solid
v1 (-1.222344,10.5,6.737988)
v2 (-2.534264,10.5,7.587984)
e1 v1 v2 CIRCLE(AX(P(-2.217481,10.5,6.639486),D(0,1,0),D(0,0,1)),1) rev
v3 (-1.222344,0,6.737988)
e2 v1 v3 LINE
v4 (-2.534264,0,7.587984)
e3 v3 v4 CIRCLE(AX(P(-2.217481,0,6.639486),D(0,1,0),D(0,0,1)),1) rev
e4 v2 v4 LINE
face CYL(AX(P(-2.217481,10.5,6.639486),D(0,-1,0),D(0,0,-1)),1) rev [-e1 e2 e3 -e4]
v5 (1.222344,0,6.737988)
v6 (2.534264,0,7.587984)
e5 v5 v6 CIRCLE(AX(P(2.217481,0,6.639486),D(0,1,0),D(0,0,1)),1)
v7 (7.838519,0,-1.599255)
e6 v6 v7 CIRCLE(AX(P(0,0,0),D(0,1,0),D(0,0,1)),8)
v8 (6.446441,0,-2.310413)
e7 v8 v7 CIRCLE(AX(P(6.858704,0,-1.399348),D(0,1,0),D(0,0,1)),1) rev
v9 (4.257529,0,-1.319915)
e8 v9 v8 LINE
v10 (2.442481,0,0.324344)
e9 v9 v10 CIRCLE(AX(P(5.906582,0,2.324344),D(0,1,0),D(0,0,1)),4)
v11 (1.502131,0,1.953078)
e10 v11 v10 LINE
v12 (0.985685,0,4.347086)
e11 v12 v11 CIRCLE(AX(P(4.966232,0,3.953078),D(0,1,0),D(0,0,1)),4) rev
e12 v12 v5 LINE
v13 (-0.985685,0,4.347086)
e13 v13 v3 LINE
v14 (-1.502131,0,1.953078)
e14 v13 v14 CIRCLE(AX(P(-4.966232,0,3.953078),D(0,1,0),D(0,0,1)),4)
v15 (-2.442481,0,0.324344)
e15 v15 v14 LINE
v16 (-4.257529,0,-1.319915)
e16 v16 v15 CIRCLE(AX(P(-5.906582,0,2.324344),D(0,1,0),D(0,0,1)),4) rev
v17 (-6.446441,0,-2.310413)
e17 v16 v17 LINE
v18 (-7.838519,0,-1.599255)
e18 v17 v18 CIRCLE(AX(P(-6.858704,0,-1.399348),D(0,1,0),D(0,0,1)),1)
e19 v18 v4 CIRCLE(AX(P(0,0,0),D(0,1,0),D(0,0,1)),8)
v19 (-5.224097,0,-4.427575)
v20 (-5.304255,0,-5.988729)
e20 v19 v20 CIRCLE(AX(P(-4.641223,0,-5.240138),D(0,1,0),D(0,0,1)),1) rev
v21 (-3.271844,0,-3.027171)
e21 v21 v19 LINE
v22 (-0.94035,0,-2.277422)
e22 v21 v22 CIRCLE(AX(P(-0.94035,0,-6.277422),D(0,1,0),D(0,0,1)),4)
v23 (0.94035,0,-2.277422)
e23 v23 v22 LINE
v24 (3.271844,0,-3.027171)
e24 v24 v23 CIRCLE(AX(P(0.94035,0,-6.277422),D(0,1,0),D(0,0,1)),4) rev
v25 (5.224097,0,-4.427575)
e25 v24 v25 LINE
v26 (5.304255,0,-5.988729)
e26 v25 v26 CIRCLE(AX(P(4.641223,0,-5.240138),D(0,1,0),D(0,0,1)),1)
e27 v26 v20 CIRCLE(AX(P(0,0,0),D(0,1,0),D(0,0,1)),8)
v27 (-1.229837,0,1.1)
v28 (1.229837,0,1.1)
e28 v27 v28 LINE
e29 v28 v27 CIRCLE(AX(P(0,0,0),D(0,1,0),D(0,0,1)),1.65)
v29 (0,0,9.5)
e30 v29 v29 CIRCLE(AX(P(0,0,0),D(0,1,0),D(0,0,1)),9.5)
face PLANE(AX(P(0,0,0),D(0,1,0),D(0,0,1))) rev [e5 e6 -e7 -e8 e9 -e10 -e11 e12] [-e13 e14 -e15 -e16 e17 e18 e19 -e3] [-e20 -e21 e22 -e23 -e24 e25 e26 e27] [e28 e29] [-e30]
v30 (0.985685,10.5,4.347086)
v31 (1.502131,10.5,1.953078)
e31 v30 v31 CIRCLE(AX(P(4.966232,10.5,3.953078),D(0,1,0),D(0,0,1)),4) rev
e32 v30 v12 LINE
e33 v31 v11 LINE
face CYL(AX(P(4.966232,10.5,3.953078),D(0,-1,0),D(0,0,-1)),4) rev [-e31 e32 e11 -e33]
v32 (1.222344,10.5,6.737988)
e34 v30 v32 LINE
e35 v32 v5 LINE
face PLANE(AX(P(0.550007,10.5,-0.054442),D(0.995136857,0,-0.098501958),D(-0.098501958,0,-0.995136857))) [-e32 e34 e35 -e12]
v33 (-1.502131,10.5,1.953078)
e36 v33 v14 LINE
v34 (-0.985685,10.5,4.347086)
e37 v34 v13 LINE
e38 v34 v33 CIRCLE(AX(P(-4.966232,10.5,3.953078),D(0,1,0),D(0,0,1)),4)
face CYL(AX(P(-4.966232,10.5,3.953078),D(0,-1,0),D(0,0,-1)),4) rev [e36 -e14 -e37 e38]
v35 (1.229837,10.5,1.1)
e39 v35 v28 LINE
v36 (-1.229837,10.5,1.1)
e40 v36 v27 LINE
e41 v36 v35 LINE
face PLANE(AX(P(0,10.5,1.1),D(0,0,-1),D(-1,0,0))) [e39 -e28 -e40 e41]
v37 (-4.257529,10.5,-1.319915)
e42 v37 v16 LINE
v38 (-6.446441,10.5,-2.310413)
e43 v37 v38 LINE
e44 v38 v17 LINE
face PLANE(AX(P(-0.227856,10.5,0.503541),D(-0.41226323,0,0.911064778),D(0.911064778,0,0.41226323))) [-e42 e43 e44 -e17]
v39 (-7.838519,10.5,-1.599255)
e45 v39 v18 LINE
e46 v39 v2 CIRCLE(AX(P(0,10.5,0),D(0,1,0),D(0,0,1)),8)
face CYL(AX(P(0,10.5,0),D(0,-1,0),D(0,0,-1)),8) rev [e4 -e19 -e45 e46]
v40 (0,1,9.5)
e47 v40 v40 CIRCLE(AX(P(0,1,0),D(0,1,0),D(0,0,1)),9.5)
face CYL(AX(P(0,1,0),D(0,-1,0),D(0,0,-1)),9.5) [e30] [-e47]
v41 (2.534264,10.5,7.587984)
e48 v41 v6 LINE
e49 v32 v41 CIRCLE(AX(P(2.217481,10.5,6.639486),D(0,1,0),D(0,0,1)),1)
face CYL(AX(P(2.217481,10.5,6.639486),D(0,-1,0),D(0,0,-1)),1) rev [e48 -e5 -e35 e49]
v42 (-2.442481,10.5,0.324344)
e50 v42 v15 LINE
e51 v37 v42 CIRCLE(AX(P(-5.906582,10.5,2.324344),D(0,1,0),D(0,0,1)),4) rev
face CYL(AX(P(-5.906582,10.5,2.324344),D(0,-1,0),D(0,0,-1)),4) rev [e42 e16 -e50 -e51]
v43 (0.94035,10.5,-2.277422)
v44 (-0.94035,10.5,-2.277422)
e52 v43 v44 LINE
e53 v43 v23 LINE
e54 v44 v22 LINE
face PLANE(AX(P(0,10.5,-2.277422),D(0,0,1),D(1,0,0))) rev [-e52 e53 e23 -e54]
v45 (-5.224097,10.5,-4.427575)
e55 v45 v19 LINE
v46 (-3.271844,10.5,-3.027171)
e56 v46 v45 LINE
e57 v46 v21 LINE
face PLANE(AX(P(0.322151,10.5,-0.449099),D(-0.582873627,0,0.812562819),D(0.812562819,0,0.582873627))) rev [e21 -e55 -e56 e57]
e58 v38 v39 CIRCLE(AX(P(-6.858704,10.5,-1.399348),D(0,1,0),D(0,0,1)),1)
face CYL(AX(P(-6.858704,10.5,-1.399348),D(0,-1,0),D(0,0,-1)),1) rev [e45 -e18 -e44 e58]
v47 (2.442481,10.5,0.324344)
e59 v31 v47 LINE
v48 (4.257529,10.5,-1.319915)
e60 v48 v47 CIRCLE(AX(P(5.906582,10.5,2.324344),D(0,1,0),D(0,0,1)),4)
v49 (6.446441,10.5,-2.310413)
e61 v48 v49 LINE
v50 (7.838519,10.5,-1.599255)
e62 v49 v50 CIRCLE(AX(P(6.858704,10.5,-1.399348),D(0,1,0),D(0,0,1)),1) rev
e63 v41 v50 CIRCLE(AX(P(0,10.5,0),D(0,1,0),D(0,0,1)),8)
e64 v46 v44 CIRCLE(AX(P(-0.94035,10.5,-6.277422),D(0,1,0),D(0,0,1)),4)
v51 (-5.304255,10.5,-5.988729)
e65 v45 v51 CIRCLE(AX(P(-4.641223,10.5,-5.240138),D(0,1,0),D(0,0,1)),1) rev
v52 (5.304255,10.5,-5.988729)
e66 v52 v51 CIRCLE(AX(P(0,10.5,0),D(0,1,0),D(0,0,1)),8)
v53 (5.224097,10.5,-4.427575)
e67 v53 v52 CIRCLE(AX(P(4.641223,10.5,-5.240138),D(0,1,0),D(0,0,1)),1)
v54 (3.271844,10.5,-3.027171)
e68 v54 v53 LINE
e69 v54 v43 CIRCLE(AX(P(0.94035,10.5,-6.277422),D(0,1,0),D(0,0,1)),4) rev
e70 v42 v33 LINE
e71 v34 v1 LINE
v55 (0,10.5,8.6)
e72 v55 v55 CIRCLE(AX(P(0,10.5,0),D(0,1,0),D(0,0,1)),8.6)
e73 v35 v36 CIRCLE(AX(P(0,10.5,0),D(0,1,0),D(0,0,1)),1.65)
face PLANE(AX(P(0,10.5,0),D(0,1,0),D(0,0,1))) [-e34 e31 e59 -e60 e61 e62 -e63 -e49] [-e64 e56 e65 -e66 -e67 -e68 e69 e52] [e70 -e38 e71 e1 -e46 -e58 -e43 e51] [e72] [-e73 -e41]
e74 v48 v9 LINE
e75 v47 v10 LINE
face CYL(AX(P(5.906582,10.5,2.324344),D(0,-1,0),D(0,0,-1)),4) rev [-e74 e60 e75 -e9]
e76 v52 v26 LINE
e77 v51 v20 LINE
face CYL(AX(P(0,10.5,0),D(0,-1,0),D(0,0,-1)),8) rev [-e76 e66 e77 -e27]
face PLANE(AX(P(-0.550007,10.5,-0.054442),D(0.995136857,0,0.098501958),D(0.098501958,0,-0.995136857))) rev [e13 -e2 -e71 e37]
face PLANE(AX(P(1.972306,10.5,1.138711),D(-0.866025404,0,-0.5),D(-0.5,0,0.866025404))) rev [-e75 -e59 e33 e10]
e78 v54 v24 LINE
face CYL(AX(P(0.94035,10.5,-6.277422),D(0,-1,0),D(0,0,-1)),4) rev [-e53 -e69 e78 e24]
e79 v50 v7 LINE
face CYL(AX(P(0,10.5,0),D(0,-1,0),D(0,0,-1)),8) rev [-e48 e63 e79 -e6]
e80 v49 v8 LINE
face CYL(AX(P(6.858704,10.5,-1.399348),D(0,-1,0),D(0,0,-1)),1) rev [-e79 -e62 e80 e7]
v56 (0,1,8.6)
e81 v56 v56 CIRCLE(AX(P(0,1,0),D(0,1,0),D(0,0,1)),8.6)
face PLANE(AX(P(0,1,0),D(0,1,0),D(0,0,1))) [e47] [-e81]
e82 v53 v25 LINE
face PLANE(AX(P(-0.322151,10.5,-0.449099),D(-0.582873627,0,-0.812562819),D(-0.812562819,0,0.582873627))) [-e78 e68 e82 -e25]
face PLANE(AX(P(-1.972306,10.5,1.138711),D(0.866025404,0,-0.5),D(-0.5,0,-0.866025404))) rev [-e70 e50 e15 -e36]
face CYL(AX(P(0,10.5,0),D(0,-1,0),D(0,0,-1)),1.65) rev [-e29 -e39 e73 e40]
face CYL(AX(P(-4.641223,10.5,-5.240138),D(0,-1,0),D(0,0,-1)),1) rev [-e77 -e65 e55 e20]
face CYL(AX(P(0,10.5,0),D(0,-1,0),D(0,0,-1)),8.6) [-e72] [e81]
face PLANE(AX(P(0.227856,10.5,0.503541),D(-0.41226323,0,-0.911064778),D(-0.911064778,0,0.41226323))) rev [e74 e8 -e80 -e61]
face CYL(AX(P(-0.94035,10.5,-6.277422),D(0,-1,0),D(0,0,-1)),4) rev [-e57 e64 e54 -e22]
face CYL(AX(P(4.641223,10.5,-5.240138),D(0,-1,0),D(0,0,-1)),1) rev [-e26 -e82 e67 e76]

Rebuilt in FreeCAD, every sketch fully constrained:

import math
import FreeCAD as App
import Part
import Sketcher
from FreeCAD import Vector
Q = App.Units.Quantity

doc = App.newDocument("Part")
body = doc.addObject("PartDesign::Body", "Body")

# Sketch on XZ plane
sketch1 = body.newObject("Sketcher::SketchObject", "Sketch")
sketch1.AttachmentSupport = (doc.getObject("XZ_Plane"), [""])
sketch1.MapMode = "FlatFace"
sketch1.addGeometry([
    Part.Circle(Vector(0, 0, 0), Vector(0, 0, 1), 9.5),
    Part.Circle(Vector(0, 0, 0), Vector(0, 0, 1), 8.6),
], False)
sketch1.addConstraint([
    Sketcher.Constraint("Coincident", 0, 3, -1, 1),
    Sketcher.Constraint("Coincident", 1, 3, -1, 1),
    Sketcher.Constraint("Diameter", 0, Q("19 mm")),
    Sketcher.Constraint("Diameter", 1, Q("17.2 mm")),
])
pad1 = body.newObject("PartDesign::Pad", "Pad")
pad1.Profile = sketch1
pad1.Length = 1
pad1.Reversed = True

# Sketch on XZ plane
sketch2 = body.newObject("Sketcher::SketchObject", "Sketch001")
sketch2.AttachmentSupport = (doc.getObject("XZ_Plane"), [""])
sketch2.MapMode = "FlatFace"
sketch2.addGeometry([
    Part.Circle(Vector(0, 0, 0), Vector(0, 0, 1), 8.6),  # 0
    Part.LineSegment(Vector(-6.446441, -2.310413, 0), Vector(-4.257529, -1.319915, 0)),  # 1
    Part.ArcOfCircle(Part.Circle(Vector(-5.906582, 2.324344, 0), Vector(0, 0, 1), 4), math.radians(-65.652913), math.radians(-30)),  # 2
    Part.LineSegment(Vector(-2.442481, 0.324344, 0), Vector(-1.502131, 1.953078, 0)),  # 3
    Part.ArcOfCircle(Part.Circle(Vector(-4.966232, 3.953078, 0), Vector(0, 0, 1), 4), math.radians(-30), math.radians(5.652913)),  # 4
    Part.LineSegment(Vector(-0.985685, 4.347086, 0), Vector(-1.222344, 6.737988, 0)),  # 5
    Part.ArcOfCircle(Part.Circle(Vector(-2.217481, 6.639486, 0), Vector(0, 0, 1), 1), math.radians(5.652913), math.radians(108.468488)),  # 6
    Part.ArcOfCircle(Part.Circle(Vector(0, 0, 0), Vector(0, 0, 1), 8), math.radians(108.468488), math.radians(131.531512)),  # 7
    Part.ArcOfCircle(Part.Circle(Vector(0, 0, 0), Vector(0, 0, 1), 8), math.radians(131.531512), math.radians(168.468488)),  # 8
    Part.ArcOfCircle(Part.Circle(Vector(0, 0, 0), Vector(0, 0, 1), 8), math.radians(168.468488), math.radians(191.531512)),  # 9
    Part.ArcOfCircle(Part.Circle(Vector(-6.858704, -1.399348, 0), Vector(0, 0, 1), 1), math.radians(-168.468488), math.radians(-65.652913)),  # 10
    Part.LineSegment(Vector(1.502131, 1.953078, 0), Vector(2.442481, 0.324344, 0)),  # 11
    Part.ArcOfCircle(Part.Circle(Vector(5.906582, 2.324344, 0), Vector(0, 0, 1), 4), math.radians(-150), math.radians(-114.347087)),  # 12
    Part.LineSegment(Vector(4.257529, -1.319915, 0), Vector(6.446441, -2.310413, 0)),  # 13
    Part.ArcOfCircle(Part.Circle(Vector(6.858704, -1.399348, 0), Vector(0, 0, 1), 1), math.radians(-114.347087), math.radians(-11.531512)),  # 14
    Part.ArcOfCircle(Part.Circle(Vector(0, 0, 0), Vector(0, 0, 1), 8), math.radians(-11.531512), math.radians(11.531512)),  # 15
    Part.ArcOfCircle(Part.Circle(Vector(0, 0, 0), Vector(0, 0, 1), 8), math.radians(11.531512), math.radians(48.468488)),  # 16
    Part.ArcOfCircle(Part.Circle(Vector(0, 0, 0), Vector(0, 0, 1), 8), math.radians(48.468488), math.radians(71.531512)),  # 17
    Part.ArcOfCircle(Part.Circle(Vector(2.217481, 6.639486, 0), Vector(0, 0, 1), 1), math.radians(71.531512), math.radians(174.347087)),  # 18
    Part.LineSegment(Vector(1.222344, 6.737988, 0), Vector(0.985685, 4.347086, 0)),  # 19
    Part.ArcOfCircle(Part.Circle(Vector(4.966232, 3.953078, 0), Vector(0, 0, 1), 4), math.radians(174.347087), math.radians(210)),  # 20
    Part.ArcOfCircle(Part.Circle(Vector(0, 0, 0), Vector(0, 0, 1), 1.65), math.radians(138.189685), math.radians(401.810315)),  # 21
    Part.LineSegment(Vector(1.229837, 1.1, 0), Vector(-1.229837, 1.1, 0)),  # 22
    Part.ArcOfCircle(Part.Circle(Vector(4.641223, -5.240138, 0), Vector(0, 0, 1), 1), math.radians(-48.468488), math.radians(54.347087)),  # 23
    Part.LineSegment(Vector(5.224097, -4.427575, 0), Vector(3.271844, -3.027171, 0)),  # 24
    Part.ArcOfCircle(Part.Circle(Vector(0.94035, -6.277422, 0), Vector(0, 0, 1), 4), math.radians(54.347087), math.radians(90)),  # 25
    Part.LineSegment(Vector(0.94035, -2.277422, 0), Vector(-0.94035, -2.277422, 0)),  # 26
    Part.ArcOfCircle(Part.Circle(Vector(-0.94035, -6.277422, 0), Vector(0, 0, 1), 4), math.radians(90), math.radians(125.652913)),  # 27
    Part.LineSegment(Vector(-3.271844, -3.027171, 0), Vector(-5.224097, -4.427575, 0)),  # 28
    Part.ArcOfCircle(Part.Circle(Vector(-4.641223, -5.240138, 0), Vector(0, 0, 1), 1), math.radians(125.652913), math.radians(228.468488)),  # 29
    Part.ArcOfCircle(Part.Circle(Vector(0, 0, 0), Vector(0, 0, 1), 8), math.radians(-131.531512), math.radians(-108.468488)),  # 30
    Part.ArcOfCircle(Part.Circle(Vector(0, 0, 0), Vector(0, 0, 1), 8), math.radians(-108.468488), math.radians(-71.531512)),  # 31
    Part.ArcOfCircle(Part.Circle(Vector(0, 0, 0), Vector(0, 0, 1), 8), math.radians(-71.531512), math.radians(-48.468488)),  # 32
], False)
sketch2.addConstraint([
    Sketcher.Constraint("Tangent", 1, 2, 2, 1),
    Sketcher.Constraint("Tangent", 2, 2, 3, 1),
    Sketcher.Constraint("Tangent", 3, 2, 4, 1),
    Sketcher.Constraint("Tangent", 4, 2, 5, 1),
    Sketcher.Constraint("Tangent", 5, 2, 6, 1),
    Sketcher.Constraint("Tangent", 6, 2, 7, 1),
    Sketcher.Constraint("Tangent", 7, 2, 8, 1),
    Sketcher.Constraint("Tangent", 8, 2, 9, 1),
    Sketcher.Constraint("Tangent", 9, 2, 10, 1),
    Sketcher.Constraint("Tangent", 10, 2, 1, 1),
    Sketcher.Constraint("Tangent", 11, 2, 12, 1),
    Sketcher.Constraint("Tangent", 12, 2, 13, 1),
    Sketcher.Constraint("Tangent", 13, 2, 14, 1),
    Sketcher.Constraint("Tangent", 14, 2, 15, 1),
    Sketcher.Constraint("Tangent", 15, 2, 16, 1),
    Sketcher.Constraint("Tangent", 16, 2, 17, 1),
    Sketcher.Constraint("Tangent", 17, 2, 18, 1),
    Sketcher.Constraint("Tangent", 18, 2, 19, 1),
    Sketcher.Constraint("Tangent", 19, 2, 20, 1),
    Sketcher.Constraint("Tangent", 20, 2, 11, 1),
    Sketcher.Constraint("Coincident", 21, 1, 22, 2),
    Sketcher.Constraint("Coincident", 22, 1, 21, 2),
    Sketcher.Constraint("Tangent", 23, 2, 24, 1),
    Sketcher.Constraint("Tangent", 24, 2, 25, 1),
    Sketcher.Constraint("Tangent", 25, 2, 26, 1),
    Sketcher.Constraint("Tangent", 26, 2, 27, 1),
    Sketcher.Constraint("Tangent", 27, 2, 28, 1),
    Sketcher.Constraint("Tangent", 28, 2, 29, 1),
    Sketcher.Constraint("Tangent", 29, 2, 30, 1),
    Sketcher.Constraint("Tangent", 30, 2, 31, 1),
    Sketcher.Constraint("Tangent", 31, 2, 32, 1),
    Sketcher.Constraint("Tangent", 32, 2, 23, 1),
    Sketcher.Constraint("Horizontal", 22),
    Sketcher.Constraint("Horizontal", 26),
    Sketcher.Constraint("Coincident", 0, 3, -1, 1),
    Sketcher.Constraint("Coincident", 7, 3, -1, 1),
    Sketcher.Constraint("Coincident", 9, 3, -1, 1),
    Sketcher.Constraint("Coincident", 15, 3, -1, 1),
    Sketcher.Constraint("Coincident", 17, 3, -1, 1),
    Sketcher.Constraint("Coincident", 21, 3, -1, 1),
    Sketcher.Constraint("Coincident", 30, 3, -1, 1),
    Sketcher.Constraint("Coincident", 32, 3, -1, 1),
    Sketcher.Constraint("Equal", 2, 4),
    Sketcher.Constraint("Equal", 6, 10),
    Sketcher.Constraint("Equal", 4, 12),
    Sketcher.Constraint("Equal", 10, 14),
    Sketcher.Constraint("Equal", 9, 15),
    Sketcher.Constraint("Equal", 14, 18),
    Sketcher.Constraint("Equal", 12, 20),
    Sketcher.Constraint("Equal", 18, 23),
    Sketcher.Constraint("Equal", 20, 25),
    Sketcher.Constraint("Equal", 25, 27),
    Sketcher.Constraint("Equal", 23, 29),
    Sketcher.Constraint("Equal", 17, 30),
    Sketcher.Constraint("Symmetric", 2, 3, 12, 3, -2),
    Sketcher.Constraint("Symmetric", 4, 3, 20, 3, -2),
    Sketcher.Constraint("Symmetric", 24, 2, 27, 2, -2),
    Sketcher.Constraint("Horizontal", 10, 3, 14, 3),
    Sketcher.Constraint("Horizontal", 6, 3, 18, 3),
    Sketcher.Constraint("Horizontal", 8, 2, 15, 2),
    Sketcher.Constraint("Horizontal", 7, 2, 16, 2),
    Sketcher.Constraint("Horizontal", 30, 2, 31, 2),
    Sketcher.Constraint("Vertical", 8, 2, 9, 2),
    Sketcher.Constraint("Vertical", 7, 2, 29, 2),
    Sketcher.Constraint("Vertical", 6, 2, 30, 2),
    Sketcher.Constraint("Equal", 1, 5),
    Sketcher.Constraint("Equal", 19, 24),
    Sketcher.Constraint("Radius", 2, Q("4 mm")),
    Sketcher.Constraint("Radius", 6, Q("1 mm")),
    Sketcher.Constraint("Radius", 7, Q("8 mm")),
    Sketcher.Constraint("Diameter", 0, Q("17.2 mm")),
    Sketcher.Constraint("Angle", 3, Q("60 deg")),
    Sketcher.Constraint("Radius", 21, Q("1.65 mm")),
    Sketcher.Constraint("DistanceY", -1, 1, 21, 1, Q("1.1 mm")),
    Sketcher.Constraint("DistanceX", 26, 2, 26, 1, Q("1.8807 mm")),
    Sketcher.Constraint("Distance", 3, Q("1.8807 mm")),
    Sketcher.Constraint("DistanceX", 2, 3, 6, 3, Q("3.689101 mm")),
    Sketcher.Constraint("DistanceY", 4, 2, 6, 3, Q("2.2924 mm")),
    Sketcher.Constraint("DistanceY", 6, 3, 6, 2, Q("0.948498 mm")),
    Sketcher.Constraint("DistanceY", 23, 3, -1, 1, Q("5.240138 mm")),
])
pad2 = body.newObject("PartDesign::Pad", "Pad001")
pad2.Profile = sketch2
pad2.Length = 10.5
pad2.Reversed = True

doc.recompute()
